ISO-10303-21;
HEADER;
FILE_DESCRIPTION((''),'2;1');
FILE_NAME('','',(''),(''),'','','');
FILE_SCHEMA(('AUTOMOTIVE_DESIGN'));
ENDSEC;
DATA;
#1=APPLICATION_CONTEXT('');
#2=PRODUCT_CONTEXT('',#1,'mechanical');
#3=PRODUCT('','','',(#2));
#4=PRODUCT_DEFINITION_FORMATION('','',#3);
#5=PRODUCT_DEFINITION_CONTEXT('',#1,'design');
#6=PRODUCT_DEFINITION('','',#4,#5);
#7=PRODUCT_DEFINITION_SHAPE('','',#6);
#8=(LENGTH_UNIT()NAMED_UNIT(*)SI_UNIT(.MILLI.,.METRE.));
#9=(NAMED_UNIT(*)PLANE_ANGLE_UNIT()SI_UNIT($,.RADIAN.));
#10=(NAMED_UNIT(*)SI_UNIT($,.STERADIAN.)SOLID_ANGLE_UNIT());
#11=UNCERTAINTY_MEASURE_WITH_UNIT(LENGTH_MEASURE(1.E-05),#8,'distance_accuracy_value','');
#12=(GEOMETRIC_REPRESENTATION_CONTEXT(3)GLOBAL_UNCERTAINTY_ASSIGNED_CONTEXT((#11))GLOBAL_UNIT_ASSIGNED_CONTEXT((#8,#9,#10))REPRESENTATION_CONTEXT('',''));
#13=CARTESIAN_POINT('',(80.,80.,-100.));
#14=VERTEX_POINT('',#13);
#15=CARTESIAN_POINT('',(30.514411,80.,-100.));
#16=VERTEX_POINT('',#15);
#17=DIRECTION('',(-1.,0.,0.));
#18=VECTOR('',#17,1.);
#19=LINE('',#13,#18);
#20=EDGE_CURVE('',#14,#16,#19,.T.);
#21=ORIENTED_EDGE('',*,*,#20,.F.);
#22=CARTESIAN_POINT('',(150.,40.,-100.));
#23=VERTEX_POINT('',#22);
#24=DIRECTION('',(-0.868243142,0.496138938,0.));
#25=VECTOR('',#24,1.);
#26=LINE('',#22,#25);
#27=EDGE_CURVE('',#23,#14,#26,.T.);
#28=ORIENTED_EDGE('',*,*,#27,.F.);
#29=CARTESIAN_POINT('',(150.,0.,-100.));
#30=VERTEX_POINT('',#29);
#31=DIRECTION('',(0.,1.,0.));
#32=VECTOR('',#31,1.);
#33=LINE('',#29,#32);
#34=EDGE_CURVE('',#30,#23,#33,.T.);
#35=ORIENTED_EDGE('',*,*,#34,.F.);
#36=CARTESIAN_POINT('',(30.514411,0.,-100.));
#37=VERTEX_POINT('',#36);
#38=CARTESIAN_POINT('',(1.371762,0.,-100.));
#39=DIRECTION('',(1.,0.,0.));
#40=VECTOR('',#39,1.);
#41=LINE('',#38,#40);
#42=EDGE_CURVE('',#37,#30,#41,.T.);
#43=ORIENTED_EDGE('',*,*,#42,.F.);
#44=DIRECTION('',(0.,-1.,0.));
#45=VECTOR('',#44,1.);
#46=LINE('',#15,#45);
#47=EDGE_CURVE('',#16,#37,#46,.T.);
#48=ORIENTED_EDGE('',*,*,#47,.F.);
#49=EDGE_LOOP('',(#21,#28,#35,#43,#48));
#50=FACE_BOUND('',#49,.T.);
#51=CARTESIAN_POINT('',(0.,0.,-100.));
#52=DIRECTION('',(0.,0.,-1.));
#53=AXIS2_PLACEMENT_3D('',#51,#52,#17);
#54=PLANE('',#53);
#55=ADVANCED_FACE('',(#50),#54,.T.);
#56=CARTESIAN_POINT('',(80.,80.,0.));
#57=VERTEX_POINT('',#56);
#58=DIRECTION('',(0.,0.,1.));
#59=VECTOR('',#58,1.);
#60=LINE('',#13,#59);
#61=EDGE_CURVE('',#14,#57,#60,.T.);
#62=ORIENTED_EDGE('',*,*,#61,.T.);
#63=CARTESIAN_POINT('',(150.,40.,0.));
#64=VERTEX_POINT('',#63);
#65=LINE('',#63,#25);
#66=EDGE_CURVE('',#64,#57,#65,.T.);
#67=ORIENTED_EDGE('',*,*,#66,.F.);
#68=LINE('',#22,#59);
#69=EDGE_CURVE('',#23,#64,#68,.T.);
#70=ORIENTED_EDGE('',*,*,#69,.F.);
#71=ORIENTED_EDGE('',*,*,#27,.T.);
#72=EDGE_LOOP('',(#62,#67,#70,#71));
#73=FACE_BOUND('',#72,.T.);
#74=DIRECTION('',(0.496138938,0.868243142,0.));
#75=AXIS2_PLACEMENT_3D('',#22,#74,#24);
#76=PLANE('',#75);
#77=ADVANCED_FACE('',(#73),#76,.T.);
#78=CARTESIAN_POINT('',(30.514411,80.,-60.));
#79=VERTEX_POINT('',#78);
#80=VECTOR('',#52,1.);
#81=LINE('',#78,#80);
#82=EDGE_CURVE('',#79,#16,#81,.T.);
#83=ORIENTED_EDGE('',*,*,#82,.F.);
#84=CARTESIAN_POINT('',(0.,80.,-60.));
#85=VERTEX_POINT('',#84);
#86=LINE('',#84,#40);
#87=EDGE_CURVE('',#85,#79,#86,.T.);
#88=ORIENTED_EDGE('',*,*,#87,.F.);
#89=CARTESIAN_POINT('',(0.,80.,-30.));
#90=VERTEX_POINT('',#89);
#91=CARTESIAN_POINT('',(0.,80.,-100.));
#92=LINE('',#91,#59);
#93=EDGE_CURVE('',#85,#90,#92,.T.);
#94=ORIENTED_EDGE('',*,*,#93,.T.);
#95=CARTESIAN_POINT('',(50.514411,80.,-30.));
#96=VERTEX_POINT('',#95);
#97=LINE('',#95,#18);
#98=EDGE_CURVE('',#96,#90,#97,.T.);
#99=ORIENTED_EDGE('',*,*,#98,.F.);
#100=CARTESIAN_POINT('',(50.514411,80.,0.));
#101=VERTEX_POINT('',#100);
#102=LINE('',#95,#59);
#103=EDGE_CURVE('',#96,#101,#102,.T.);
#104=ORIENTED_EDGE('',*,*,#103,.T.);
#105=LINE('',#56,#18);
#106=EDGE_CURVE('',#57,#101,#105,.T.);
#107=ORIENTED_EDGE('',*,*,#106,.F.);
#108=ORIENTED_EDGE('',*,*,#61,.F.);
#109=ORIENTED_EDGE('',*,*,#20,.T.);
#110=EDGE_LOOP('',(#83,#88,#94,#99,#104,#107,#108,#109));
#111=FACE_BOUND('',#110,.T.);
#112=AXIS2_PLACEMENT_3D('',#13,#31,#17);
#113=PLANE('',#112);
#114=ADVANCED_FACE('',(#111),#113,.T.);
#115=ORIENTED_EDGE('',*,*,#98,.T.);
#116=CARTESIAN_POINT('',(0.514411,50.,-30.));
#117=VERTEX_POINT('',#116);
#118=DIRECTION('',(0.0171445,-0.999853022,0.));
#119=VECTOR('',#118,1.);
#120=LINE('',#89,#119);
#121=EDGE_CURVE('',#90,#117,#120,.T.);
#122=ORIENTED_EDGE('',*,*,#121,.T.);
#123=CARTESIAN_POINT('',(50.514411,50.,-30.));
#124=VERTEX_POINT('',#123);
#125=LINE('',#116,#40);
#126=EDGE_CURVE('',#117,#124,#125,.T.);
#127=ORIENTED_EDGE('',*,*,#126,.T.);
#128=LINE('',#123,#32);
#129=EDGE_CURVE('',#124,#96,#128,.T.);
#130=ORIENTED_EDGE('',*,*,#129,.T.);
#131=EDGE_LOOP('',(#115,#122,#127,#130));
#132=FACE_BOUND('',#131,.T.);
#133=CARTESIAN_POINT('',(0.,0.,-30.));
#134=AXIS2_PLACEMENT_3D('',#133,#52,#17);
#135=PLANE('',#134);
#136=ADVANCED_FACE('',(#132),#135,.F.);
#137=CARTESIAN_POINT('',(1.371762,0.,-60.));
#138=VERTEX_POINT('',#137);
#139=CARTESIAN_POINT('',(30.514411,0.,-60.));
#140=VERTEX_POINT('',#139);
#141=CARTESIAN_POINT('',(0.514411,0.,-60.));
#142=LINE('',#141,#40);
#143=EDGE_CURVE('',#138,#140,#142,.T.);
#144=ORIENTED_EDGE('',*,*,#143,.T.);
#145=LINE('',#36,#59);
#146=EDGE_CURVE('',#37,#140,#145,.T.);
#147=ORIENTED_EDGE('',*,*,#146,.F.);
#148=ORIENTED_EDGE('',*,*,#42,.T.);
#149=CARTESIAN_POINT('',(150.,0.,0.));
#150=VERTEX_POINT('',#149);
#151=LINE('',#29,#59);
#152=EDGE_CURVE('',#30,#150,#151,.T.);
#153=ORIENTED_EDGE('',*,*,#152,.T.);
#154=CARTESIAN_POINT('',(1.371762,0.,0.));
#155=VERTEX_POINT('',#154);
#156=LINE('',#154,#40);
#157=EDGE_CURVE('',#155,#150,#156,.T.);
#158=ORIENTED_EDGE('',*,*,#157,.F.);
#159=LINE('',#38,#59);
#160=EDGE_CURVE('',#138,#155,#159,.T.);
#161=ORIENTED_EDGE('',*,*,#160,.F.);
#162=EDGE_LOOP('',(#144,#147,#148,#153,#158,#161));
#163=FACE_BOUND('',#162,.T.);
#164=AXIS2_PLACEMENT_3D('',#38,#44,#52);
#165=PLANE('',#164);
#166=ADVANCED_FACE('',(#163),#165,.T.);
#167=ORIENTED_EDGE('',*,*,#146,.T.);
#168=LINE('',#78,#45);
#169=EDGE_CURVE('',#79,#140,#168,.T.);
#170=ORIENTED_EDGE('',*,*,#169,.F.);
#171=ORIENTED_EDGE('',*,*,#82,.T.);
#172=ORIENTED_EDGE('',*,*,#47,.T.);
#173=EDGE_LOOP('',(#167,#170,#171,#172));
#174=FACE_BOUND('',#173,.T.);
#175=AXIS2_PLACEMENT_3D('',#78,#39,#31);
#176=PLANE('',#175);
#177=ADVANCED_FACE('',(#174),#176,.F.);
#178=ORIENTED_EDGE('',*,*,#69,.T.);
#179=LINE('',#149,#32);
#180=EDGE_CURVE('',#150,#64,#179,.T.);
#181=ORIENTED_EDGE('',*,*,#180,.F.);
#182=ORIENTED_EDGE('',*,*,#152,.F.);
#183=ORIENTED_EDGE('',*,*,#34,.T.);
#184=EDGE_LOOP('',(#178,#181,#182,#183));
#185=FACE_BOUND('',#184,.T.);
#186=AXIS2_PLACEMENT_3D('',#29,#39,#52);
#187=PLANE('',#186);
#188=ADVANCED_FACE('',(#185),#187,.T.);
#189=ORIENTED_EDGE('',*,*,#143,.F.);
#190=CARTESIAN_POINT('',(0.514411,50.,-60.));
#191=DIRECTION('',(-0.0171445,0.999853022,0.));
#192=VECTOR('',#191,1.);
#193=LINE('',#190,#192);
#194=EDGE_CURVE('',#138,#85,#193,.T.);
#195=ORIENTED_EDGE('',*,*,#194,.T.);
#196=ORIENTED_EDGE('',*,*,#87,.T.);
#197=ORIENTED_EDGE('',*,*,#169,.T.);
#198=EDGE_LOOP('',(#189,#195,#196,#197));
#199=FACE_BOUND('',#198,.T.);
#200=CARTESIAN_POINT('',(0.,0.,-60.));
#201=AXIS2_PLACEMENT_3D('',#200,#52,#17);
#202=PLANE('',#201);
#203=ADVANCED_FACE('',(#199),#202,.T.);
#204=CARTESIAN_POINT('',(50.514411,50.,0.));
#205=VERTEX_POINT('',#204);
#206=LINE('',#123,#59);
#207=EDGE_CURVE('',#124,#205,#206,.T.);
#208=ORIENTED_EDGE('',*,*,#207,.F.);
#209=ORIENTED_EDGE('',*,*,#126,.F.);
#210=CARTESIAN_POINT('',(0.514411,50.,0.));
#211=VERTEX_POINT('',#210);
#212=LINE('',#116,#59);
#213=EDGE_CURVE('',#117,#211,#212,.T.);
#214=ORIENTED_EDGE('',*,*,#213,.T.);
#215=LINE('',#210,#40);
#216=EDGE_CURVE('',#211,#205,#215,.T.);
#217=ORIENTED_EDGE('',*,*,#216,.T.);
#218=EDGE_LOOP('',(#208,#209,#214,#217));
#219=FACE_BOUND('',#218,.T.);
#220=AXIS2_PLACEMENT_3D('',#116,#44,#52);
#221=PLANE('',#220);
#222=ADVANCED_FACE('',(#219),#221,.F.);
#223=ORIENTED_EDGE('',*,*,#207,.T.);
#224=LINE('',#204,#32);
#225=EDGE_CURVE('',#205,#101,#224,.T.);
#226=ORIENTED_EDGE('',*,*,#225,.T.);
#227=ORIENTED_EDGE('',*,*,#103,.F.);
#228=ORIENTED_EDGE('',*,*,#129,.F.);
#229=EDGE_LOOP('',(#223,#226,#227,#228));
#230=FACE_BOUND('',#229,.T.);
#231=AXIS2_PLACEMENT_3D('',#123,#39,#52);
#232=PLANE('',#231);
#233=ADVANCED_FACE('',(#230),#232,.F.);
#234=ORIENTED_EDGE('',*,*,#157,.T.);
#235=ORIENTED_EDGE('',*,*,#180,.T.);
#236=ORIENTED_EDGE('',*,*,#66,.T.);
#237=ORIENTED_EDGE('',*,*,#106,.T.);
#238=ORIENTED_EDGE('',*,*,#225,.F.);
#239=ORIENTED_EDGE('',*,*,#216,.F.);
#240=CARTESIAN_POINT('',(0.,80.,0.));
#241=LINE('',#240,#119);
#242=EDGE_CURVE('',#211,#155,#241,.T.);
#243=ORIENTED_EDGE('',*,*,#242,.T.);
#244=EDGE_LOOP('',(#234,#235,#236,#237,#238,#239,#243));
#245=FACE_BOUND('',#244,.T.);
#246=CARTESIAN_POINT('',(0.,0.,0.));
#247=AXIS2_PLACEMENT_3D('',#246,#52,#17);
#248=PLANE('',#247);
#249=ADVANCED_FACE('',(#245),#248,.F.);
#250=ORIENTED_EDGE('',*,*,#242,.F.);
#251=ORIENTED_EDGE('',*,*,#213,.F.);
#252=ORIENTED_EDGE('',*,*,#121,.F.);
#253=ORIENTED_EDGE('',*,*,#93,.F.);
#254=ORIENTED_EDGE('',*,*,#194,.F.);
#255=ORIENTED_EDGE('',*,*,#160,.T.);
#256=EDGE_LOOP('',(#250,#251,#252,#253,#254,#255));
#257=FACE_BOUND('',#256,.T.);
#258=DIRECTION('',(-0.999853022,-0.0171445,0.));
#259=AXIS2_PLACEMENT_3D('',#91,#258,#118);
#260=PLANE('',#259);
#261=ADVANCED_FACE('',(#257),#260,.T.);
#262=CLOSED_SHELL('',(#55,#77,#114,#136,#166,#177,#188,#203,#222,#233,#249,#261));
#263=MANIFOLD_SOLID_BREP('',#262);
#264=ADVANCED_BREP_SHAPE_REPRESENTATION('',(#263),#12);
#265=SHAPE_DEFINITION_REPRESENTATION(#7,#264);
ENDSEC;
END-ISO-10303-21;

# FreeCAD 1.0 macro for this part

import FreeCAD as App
import Part
import Sketcher


def add_polygon(sketch, points):
    """Adds a closed chain of lines whose ends are joined by coincident constraints."""
    first, n = sketch.GeometryCount, len(points)
    for a, b in zip(points, points[1:] + points[:1]):
        sketch.addGeometry(Part.LineSegment(App.Vector(*a, 0), App.Vector(*b, 0)), False)
    for i in range(n):
        sketch.addConstraint(Sketcher.Constraint("Coincident", first + i, 2, first + (i + 1) % n, 1))

doc = App.newDocument("Part")
body = doc.addObject("PartDesign::Body", "Body")

sketch1 = body.newObject("Sketcher::SketchObject", "Sketch")
sketch1.AttachmentSupport = (doc.getObject("XY_Plane"), [""])
sketch1.MapMode = "FlatFace"
add_polygon(sketch1, [(1, 0), (150, 0), (150, 40), (80, 80), (0, 80)])
sketch1.addConstraint(Sketcher.Constraint("Horizontal", 0))
sketch1.addConstraint(Sketcher.Constraint("Vertical", 1))
sketch1.addConstraint(Sketcher.Constraint("Horizontal", 3))
sketch1.addConstraint(Sketcher.Constraint("PointOnObject", 0, 2, -1))
sketch1.addConstraint(Sketcher.Constraint("PointOnObject", 3, 2, -2))
sketch1.addConstraint(Sketcher.Constraint("DistanceX", 3, 2, 3, 1, 80.0))
sketch1.addConstraint(Sketcher.Constraint("DistanceY", 1, 1, 1, 2, 40.0))
sketch1.addConstraint(Sketcher.Constraint("DistanceX", -1, 1, 0, 2, 150.0))
sketch1.addConstraint(Sketcher.Constraint("DistanceY", -1, 1, 2, 2, 80.0))
sketch1.addConstraint(Sketcher.Constraint("DistanceX", 0, 1, 0, 2, 148.628238))
pad1 = body.newObject("PartDesign::Pad", "Pad")
pad1.Profile = sketch1
pad1.Length = 100
pad1.Reversed = True

sketch2 = body.newObject("Sketcher::SketchObject", "Sketch001")
sketch2.AttachmentSupport = (doc.getObject("XY_Plane"), [""])
sketch2.MapMode = "FlatFace"
add_polygon(sketch2, [(0, 80), (1, 50), (51, 50), (51, 80)])
sketch2.addConstraint(Sketcher.Constraint("Horizontal", 1))
sketch2.addConstraint(Sketcher.Constraint("Vertical", 2))
sketch2.addConstraint(Sketcher.Constraint("Horizontal", 3))
sketch2.addConstraint(Sketcher.Constraint("PointOnObject", 3, 2, -2))
sketch2.addConstraint(Sketcher.Constraint("DistanceX", 1, 1, 1, 2, 50.0))
sketch2.addConstraint(Sketcher.Constraint("DistanceY", 2, 1, 2, 2, 30.0))
sketch2.addConstraint(Sketcher.Constraint("DistanceY", -1, 1, 0, 2, 50.0))
sketch2.addConstraint(Sketcher.Constraint("DistanceX", 3, 2, 3, 1, 50.514411))
pocket1 = body.newObject("PartDesign::Pocket", "Pocket")
pocket1.Profile = sketch2
pocket1.Length = 30

sketch3 = body.newObject("Sketcher::SketchObject", "Sketch002")
sketch3.AttachmentSupport = (doc.getObject("XY_Plane"), [""])
sketch3.MapMode = "FlatFace"
sketch3.AttachmentOffset = App.Placement(App.Vector(0, 0, -100), App.Rotation())
add_polygon(sketch3, [(0, 80), (31, 80), (31, 50), (1, 50)])
sketch3.addConstraint(Sketcher.Constraint("Horizontal", 0))
sketch3.addConstraint(Sketcher.Constraint("Vertical", 1))
sketch3.addConstraint(Sketcher.Constraint("Horizontal", 2))
sketch3.addConstraint(Sketcher.Constraint("PointOnObject", 3, 2, -2))
sketch3.addConstraint(Sketcher.Constraint("Equal", 2, 1))
sketch3.addConstraint(Sketcher.Constraint("DistanceX", 2, 2, 2, 1, 30.0))
sketch3.addConstraint(Sketcher.Constraint("DistanceY", -1, 1, 0, 2, 80.0))
sketch3.addConstraint(Sketcher.Constraint("DistanceX", 0, 1, 0, 2, 30.514411))
pocket2 = body.newObject("PartDesign::Pocket", "Pocket001")
pocket2.Profile = sketch3
pocket2.Length = 40
pocket2.Reversed = True

sketch4 = body.newObject("Sketcher::SketchObject", "Sketch003")
sketch4.AttachmentSupport = (doc.getObject("XZ_Plane"), [""])
sketch4.MapMode = "FlatFace"
sketch4.AttachmentOffset = App.Placement(App.Vector(0, 0, -50), App.Rotation())
add_polygon(sketch4, [(1, -100), (1, -60), (31, -60), (31, -100)])
sketch4.addConstraint(Sketcher.Constraint("Vertical", 0))
sketch4.addConstraint(Sketcher.Constraint("Horizontal", 1))
sketch4.addConstraint(Sketcher.Constraint("Vertical", 2))
sketch4.addConstraint(Sketcher.Constraint("Horizontal", 3))
sketch4.addConstraint(Sketcher.Constraint("DistanceX", 1, 1, 1, 2, 30.0))
sketch4.addConstraint(Sketcher.Constraint("DistanceY", 0, 1, 0, 2, 40.0))
sketch4.addConstraint(Sketcher.Constraint("DistanceY", 0, 2, -1, 1, 60.0))
sketch4.addConstraint(Sketcher.Constraint("DistanceX", -1, 1, 0, 2, 0.514411))
pocket3 = body.newObject("PartDesign::Pocket", "Pocket002")
pocket3.Profile = sketch4
pocket3.Type = "ThroughAll"
pocket3.Reversed = True

doc.recompute()
